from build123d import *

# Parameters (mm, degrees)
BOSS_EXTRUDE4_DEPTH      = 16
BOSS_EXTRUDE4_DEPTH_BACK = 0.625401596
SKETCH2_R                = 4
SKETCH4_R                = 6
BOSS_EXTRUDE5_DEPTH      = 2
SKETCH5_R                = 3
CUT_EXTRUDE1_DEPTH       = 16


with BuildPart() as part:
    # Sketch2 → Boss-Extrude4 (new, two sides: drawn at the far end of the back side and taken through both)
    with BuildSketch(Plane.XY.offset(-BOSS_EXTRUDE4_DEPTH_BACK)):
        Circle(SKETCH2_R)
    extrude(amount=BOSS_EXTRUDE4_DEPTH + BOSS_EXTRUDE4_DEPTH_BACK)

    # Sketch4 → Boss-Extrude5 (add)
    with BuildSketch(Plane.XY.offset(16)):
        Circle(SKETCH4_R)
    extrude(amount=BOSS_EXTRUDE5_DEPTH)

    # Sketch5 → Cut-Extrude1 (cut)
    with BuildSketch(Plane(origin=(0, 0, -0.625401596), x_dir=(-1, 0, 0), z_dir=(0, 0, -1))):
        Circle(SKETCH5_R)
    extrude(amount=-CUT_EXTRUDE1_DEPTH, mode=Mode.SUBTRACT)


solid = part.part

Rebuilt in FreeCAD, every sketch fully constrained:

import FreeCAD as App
import Part
import Sketcher
Q = App.Units.Quantity

doc = App.newDocument("Part")
params = doc.addObject("Spreadsheet::Sheet", "Params")
for row, (alias, value) in enumerate([
    ("sketch1_diameter", "8 mm"),
    ("pad1_length", "16 mm"),
    ("pad1_length2", "0.625402 mm"),
    ("sketch2_diameter", "12 mm"),
    ("pad2_length", "2 mm"),
    ("sketch3_diameter", "6 mm"),
    ("pocket1_length", "16 mm"),
], start=1):
    params.set(f"A{row}", alias)
    params.set(f"B{row}", "=" + value)
    params.setAlias(f"B{row}", alias)

body = doc.addObject("PartDesign::Body", "Body")

sketch1 = body.newObject("Sketcher::SketchObject", "Sketch")
sketch1.AttachmentSupport = (doc.getObject("XY_Plane"), [""])
sketch1.MapMode = "FlatFace"
sketch1.addGeometry(Part.Circle(App.Vector(0, 0, 0), App.Vector(0, 0, 1), 4), False)
sketch1.addConstraint([
    Sketcher.Constraint("Coincident", 0, 3, -1, 1),
    Sketcher.Constraint("Diameter", 0, Q("8 mm")),
])
sketch1.setExpression("Constraints[1]", "Params.sketch1_diameter")
pad1 = body.newObject("PartDesign::Pad", "Pad")
pad1.Profile = sketch1
pad1.Type = "TwoLengths"
pad1.setExpression("Length", "Params.pad1_length")
pad1.setExpression("Length2", "Params.pad1_length2")

sketch2 = body.newObject("Sketcher::SketchObject", "Sketch001")
sketch2.AttachmentSupport = (doc.getObject("XY_Plane"), [""])
sketch2.MapMode = "FlatFace"
sketch2.AttachmentOffset = App.Placement(App.Vector(0, 0, 16), App.Rotation())
sketch2.addGeometry(Part.Circle(App.Vector(0, 0, 0), App.Vector(0, 0, 1), 6), False)
sketch2.addConstraint([
    Sketcher.Constraint("Coincident", 0, 3, -1, 1),
    Sketcher.Constraint("Diameter", 0, Q("12 mm")),
])
sketch2.setExpression("Constraints[1]", "Params.sketch2_diameter")
pad2 = body.newObject("PartDesign::Pad", "Pad001")
pad2.Profile = sketch2
pad2.setExpression("Length", "Params.pad2_length")

sketch3 = body.newObject("Sketcher::SketchObject", "Sketch002")
sketch3.AttachmentSupport = (doc.getObject("XY_Plane"), [""])
sketch3.MapMode = "FlatFace"
sketch3.AttachmentOffset = App.Placement(App.Vector(0, 0, -0.625402), App.Rotation())
sketch3.addGeometry(Part.Circle(App.Vector(0, 0, 0), App.Vector(0, 0, 1), 3), False)
sketch3.addConstraint([
    Sketcher.Constraint("Coincident", 0, 3, -1, 1),
    Sketcher.Constraint("Diameter", 0, Q("6 mm")),
])
sketch3.setExpression("Constraints[1]", "Params.sketch3_diameter")
pocket1 = body.newObject("PartDesign::Pocket", "Pocket")
pocket1.Profile = sketch3
pocket1.setExpression("Length", "Params.pocket1_length")
pocket1.Reversed = True

doc.recompute()
